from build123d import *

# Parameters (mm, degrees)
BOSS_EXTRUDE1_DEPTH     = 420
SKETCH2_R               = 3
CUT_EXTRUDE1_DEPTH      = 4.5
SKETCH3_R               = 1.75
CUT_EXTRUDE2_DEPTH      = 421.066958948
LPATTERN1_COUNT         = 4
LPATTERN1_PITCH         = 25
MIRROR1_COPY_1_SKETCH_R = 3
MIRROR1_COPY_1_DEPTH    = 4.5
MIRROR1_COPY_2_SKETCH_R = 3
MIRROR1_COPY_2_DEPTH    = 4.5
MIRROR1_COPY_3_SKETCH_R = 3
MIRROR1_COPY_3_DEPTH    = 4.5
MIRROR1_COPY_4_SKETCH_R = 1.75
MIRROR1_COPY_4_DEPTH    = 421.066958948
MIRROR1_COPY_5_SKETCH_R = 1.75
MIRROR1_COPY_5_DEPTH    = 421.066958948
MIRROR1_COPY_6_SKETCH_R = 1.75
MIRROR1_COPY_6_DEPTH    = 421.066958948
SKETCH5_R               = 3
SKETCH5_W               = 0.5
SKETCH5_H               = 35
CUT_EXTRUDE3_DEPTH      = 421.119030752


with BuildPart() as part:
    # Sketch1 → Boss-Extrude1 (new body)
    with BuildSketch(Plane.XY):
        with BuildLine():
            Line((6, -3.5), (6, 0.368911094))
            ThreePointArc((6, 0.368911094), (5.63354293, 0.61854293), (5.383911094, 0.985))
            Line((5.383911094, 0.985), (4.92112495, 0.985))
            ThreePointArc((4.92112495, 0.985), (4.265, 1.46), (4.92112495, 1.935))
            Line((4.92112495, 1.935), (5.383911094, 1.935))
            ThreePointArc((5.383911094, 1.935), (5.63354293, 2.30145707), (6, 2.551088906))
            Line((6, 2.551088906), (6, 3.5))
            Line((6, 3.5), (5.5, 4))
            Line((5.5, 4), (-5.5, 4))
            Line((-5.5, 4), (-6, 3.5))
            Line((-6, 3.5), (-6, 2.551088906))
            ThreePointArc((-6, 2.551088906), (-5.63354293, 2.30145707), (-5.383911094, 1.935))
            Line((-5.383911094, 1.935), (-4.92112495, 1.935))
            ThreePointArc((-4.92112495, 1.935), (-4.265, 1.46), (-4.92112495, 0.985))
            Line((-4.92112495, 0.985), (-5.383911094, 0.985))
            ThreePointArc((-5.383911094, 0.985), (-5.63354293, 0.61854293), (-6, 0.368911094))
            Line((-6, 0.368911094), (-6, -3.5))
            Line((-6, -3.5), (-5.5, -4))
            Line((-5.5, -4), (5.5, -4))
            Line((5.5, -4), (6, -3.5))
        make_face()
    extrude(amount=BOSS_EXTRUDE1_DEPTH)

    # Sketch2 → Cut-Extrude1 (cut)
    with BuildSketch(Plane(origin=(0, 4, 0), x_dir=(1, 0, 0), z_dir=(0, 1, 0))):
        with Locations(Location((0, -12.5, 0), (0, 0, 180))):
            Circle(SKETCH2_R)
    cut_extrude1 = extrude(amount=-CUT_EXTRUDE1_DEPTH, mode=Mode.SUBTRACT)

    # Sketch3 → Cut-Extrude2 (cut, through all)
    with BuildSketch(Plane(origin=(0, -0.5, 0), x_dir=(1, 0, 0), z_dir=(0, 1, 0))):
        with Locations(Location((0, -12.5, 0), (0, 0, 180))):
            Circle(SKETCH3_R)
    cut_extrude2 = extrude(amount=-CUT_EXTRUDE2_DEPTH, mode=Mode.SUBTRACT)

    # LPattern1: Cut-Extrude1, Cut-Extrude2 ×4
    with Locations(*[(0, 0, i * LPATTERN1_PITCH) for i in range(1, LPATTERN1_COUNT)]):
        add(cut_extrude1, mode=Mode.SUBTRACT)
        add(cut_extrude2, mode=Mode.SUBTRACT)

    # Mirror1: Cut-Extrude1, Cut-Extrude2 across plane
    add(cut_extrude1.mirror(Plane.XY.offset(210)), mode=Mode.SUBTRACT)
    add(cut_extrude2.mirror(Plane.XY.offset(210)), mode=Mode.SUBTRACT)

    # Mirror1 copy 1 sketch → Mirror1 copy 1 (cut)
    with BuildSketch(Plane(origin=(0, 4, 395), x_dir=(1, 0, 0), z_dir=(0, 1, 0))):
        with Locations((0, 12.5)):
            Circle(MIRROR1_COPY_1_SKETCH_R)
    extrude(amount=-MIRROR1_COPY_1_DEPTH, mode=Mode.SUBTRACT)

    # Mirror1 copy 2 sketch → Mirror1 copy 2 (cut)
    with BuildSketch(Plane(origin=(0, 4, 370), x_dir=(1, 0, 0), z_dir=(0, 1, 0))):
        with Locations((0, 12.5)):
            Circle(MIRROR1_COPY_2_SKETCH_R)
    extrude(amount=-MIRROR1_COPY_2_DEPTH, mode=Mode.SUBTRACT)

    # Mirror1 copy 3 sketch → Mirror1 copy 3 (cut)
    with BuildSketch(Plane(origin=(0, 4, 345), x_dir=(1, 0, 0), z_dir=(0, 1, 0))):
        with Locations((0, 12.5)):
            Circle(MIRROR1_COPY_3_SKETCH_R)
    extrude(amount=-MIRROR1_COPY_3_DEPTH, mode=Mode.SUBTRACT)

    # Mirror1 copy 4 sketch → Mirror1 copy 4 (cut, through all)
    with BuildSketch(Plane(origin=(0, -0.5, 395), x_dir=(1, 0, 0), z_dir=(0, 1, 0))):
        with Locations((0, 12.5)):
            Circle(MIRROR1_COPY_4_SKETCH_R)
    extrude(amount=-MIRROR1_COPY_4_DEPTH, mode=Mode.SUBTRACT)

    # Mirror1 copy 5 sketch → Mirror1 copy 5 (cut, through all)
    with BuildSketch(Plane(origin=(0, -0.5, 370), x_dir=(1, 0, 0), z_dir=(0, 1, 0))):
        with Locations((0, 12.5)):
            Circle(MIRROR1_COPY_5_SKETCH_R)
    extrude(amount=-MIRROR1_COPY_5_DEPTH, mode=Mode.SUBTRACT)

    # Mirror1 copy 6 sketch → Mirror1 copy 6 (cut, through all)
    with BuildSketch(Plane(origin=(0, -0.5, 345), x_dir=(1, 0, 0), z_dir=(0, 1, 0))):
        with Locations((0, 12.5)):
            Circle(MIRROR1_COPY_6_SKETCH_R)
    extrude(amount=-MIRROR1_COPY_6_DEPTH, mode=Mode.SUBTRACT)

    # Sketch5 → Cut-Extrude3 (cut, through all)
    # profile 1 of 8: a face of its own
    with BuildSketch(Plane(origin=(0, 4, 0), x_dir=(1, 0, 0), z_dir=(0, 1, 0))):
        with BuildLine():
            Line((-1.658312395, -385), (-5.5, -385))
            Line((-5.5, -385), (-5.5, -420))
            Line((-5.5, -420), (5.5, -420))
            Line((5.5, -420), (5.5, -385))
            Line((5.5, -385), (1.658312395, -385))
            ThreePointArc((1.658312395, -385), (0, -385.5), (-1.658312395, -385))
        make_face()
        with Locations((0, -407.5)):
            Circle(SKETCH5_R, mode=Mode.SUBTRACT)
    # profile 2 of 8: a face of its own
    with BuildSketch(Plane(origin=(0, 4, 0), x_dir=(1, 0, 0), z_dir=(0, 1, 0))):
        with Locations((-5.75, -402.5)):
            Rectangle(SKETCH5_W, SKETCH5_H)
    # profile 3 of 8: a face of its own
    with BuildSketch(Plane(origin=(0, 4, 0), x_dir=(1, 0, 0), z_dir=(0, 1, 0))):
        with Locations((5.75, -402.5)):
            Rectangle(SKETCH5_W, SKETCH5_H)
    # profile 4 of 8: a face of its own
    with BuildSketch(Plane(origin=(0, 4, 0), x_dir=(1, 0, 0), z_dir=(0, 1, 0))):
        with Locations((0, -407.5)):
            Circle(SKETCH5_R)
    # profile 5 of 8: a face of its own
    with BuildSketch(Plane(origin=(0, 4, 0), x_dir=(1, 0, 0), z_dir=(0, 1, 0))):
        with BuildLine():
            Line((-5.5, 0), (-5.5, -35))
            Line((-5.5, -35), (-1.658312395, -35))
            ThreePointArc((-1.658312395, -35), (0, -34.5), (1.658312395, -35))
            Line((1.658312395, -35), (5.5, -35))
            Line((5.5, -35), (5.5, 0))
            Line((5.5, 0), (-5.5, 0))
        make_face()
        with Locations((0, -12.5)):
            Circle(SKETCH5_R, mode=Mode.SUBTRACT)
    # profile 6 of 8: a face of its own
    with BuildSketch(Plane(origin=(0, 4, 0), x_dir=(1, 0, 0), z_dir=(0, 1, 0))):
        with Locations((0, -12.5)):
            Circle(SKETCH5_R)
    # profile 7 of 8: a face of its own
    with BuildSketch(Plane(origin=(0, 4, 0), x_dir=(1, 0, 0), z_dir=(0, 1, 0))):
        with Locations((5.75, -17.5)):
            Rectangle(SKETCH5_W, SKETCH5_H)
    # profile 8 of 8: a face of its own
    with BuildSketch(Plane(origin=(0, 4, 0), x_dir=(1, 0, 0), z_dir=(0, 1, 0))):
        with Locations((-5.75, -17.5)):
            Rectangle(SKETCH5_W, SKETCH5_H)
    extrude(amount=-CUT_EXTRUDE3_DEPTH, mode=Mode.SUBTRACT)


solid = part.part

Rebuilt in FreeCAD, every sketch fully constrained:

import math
import FreeCAD as App
import Part
import Sketcher
from FreeCAD import Vector
Q = App.Units.Quantity

doc = App.newDocument("Part")
body = doc.addObject("PartDesign::Body", "Body")

sketch1 = doc.addObject("Sketcher::SketchObject", "Sketch")
body.addObject(sketch1)
sketch1.AttachmentSupport = (doc.XY_Plane, [""])
sketch1.MapMode = "FlatFace"
sketch1.addGeometry([
    Part.LineSegment(Vector(6, -3.5, 0), Vector(6, 0.368911, 0)),
    Part.ArcOfCircle(Part.Circle(Vector(6.475, 1.46, 0), Vector(0, 0, 1), 1.19), math.radians(-156.474345), math.radians(-113.525655)),
    Part.LineSegment(Vector(5.383911, 0.985, 0), Vector(4.921125, 0.985, 0)),
    Part.ArcOfCircle(Part.Circle(Vector(4.765, 1.46, 0), Vector(0, 0, 1), 0.5), math.radians(71.805128), math.radians(288.194872)),
    Part.LineSegment(Vector(4.921125, 1.935, 0), Vector(5.383911, 1.935, 0)),
    Part.ArcOfCircle(Part.Circle(Vector(6.475, 1.46, 0), Vector(0, 0, 1), 1.19), math.radians(113.525655), math.radians(156.474345)),
    Part.LineSegment(Vector(6, 2.551089, 0), Vector(6, 3.5, 0)),
    Part.LineSegment(Vector(6, 3.5, 0), Vector(5.5, 4, 0)),
    Part.LineSegment(Vector(5.5, 4, 0), Vector(-5.5, 4, 0)),
    Part.LineSegment(Vector(-5.5, 4, 0), Vector(-6, 3.5, 0)),
    Part.LineSegment(Vector(-6, 3.5, 0), Vector(-6, 2.551089, 0)),
    Part.ArcOfCircle(Part.Circle(Vector(-6.475, 1.46, 0), Vector(0, 0, 1), 1.19), math.radians(23.525655), math.radians(66.474345)),
    Part.LineSegment(Vector(-5.383911, 1.935, 0), Vector(-4.921125, 1.935, 0)),
    Part.ArcOfCircle(Part.Circle(Vector(-4.765, 1.46, 0), Vector(0, 0, 1), 0.5), math.radians(-108.194872), math.radians(108.194872)),
    Part.LineSegment(Vector(-4.921125, 0.985, 0), Vector(-5.383911, 0.985, 0)),
    Part.ArcOfCircle(Part.Circle(Vector(-6.475, 1.46, 0), Vector(0, 0, 1), 1.19), math.radians(-66.474345), math.radians(-23.525655)),
    Part.LineSegment(Vector(-6, 0.368911, 0), Vector(-6, -3.5, 0)),
    Part.LineSegment(Vector(-6, -3.5, 0), Vector(-5.5, -4, 0)),
    Part.LineSegment(Vector(-5.5, -4, 0), Vector(5.5, -4, 0)),
    Part.LineSegment(Vector(5.5, -4, 0), Vector(6, -3.5, 0)),
], False)
sketch1.addConstraint([
    Sketcher.Constraint("Coincident", 0, 2, 1, 2),
    Sketcher.Constraint("Coincident", 1, 1, 2, 1),
    Sketcher.Constraint("Coincident", 2, 2, 3, 2),
    Sketcher.Constraint("Coincident", 3, 1, 4, 1),
    Sketcher.Constraint("Coincident", 4, 2, 5, 2),
    Sketcher.Constraint("Coincident", 5, 1, 6, 1),
    Sketcher.Constraint("Coincident", 6, 2, 7, 1),
    Sketcher.Constraint("Coincident", 7, 2, 8, 1),
    Sketcher.Constraint("Coincident", 8, 2, 9, 1),
    Sketcher.Constraint("Coincident", 9, 2, 10, 1),
    Sketcher.Constraint("Coincident", 10, 2, 11, 2),
    Sketcher.Constraint("Coincident", 11, 1, 12, 1),
    Sketcher.Constraint("Coincident", 12, 2, 13, 2),
    Sketcher.Constraint("Coincident", 13, 1, 14, 1),
    Sketcher.Constraint("Coincident", 14, 2, 15, 2),
    Sketcher.Constraint("Coincident", 15, 1, 16, 1),
    Sketcher.Constraint("Coincident", 16, 2, 17, 1),
    Sketcher.Constraint("Coincident", 17, 2, 18, 1),
    Sketcher.Constraint("Coincident", 18, 2, 19, 1),
    Sketcher.Constraint("Coincident", 19, 2, 0, 1),
    Sketcher.Constraint("Vertical", 0),
    Sketcher.Constraint("Horizontal", 2),
    Sketcher.Constraint("Horizontal", 4),
    Sketcher.Constraint("Vertical", 6),
    Sketcher.Constraint("Horizontal", 8),
    Sketcher.Constraint("Vertical", 10),
    Sketcher.Constraint("Horizontal", 12),
    Sketcher.Constraint("Horizontal", 14),
    Sketcher.Constraint("Vertical", 16),
    Sketcher.Constraint("Horizontal", 18),
    Sketcher.Constraint("Coincident", 5, 3, 1, 3),
    Sketcher.Constraint("Coincident", 15, 3, 11, 3),
    Sketcher.Constraint("Equal", 1, 5),
    Sketcher.Constraint("Equal", 5, 11),
    Sketcher.Constraint("Equal", 3, 13),
    Sketcher.Constraint("Equal", 11, 15),
    Sketcher.Constraint("Symmetric", 6, 2, 16, 2, -1, 1),
    Sketcher.Constraint("Symmetric", 7, 2, 17, 2, -1, 1),
    Sketcher.Constraint("Symmetric", 9, 2, 19, 2, -1, 1),
    Sketcher.Constraint("Symmetric", 1, 3, 11, 3, -2),
    Sketcher.Constraint("Symmetric", 3, 3, 13, 3, -2),
    Sketcher.Constraint("Symmetric", 6, 2, 9, 2, -2),
    Sketcher.Constraint("Perpendicular", 7, 9),
    Sketcher.Constraint("Perpendicular", 17, 19),
    Sketcher.Constraint("Horizontal", 1, 3, 3, 3),
    Sketcher.Constraint("Horizontal", 4, 2, 11, 1),
    Sketcher.Constraint("Horizontal", 2, 2, 13, 1),
    Sketcher.Constraint("Vertical", 2, 2, 3, 1),
    Sketcher.Constraint("Vertical", 8, 2, 17, 2),
    Sketcher.Constraint("Radius", 3, Q("0.5 mm")),
    Sketcher.Constraint("DistanceX", 8, 2, 8, 1, Q("11 mm")),
    Sketcher.Constraint("Radius", 1, Q("1.19 mm")),
    Sketcher.Constraint("DistanceX", -1, 1, 0, 2, Q("6 mm")),
    Sketcher.Constraint("DistanceY", -1, 1, 7, 2, Q("4 mm")),
    Sketcher.Constraint("DistanceY", -1, 1, 1, 3, Q("1.46 mm")),
    Sketcher.Constraint("DistanceX", 3, 3, 1, 3, Q("1.71 mm")),
    Sketcher.Constraint("DistanceX", 11, 3, 3, 3, Q("11.24 mm")),
    Sketcher.Constraint("DistanceY", 2, 2, 3, 1, Q("0.95 mm")),
])
pad1 = doc.addObject("PartDesign::Pad", "Pad")
body.addObject(pad1)
pad1.Profile = sketch1
pad1.Length = 420

sketch2 = doc.addObject("Sketcher::SketchObject", "Sketch001")
body.addObject(sketch2)
sketch2.AttachmentSupport = (doc.XZ_Plane, [""])
sketch2.MapMode = "FlatFace"
sketch2.AttachmentOffset = App.Placement(Vector(0, 0, -4), App.Rotation())
sketch2.addGeometry(Part.Circle(Vector(0, 12.5, 0), Vector(0, 0, 1), 3), False)
sketch2.addConstraint([
    Sketcher.Constraint("PointOnObject", 0, 3, -2),
    Sketcher.Constraint("Diameter", 0, Q("6 mm")),
    Sketcher.Constraint("DistanceY", -1, 1, 0, 3, Q("12.5 mm")),
])
pocket1 = doc.addObject("PartDesign::Pocket", "Pocket")
body.addObject(pocket1)
pocket1.Profile = sketch2
pocket1.Length = 4.5
pocket1.Reversed = True

sketch3 = doc.addObject("Sketcher::SketchObject", "Sketch002")
body.addObject(sketch3)
sketch3.AttachmentSupport = (doc.XZ_Plane, [""])
sketch3.MapMode = "FlatFace"
sketch3.AttachmentOffset = App.Placement(Vector(0, 0, 0.5), App.Rotation())
sketch3.addGeometry(Part.Circle(Vector(0, 12.5, 0), Vector(0, 0, 1), 1.75), False)
sketch3.addConstraint([
    Sketcher.Constraint("PointOnObject", 0, 3, -2),
    Sketcher.Constraint("Diameter", 0, Q("3.5 mm")),
    Sketcher.Constraint("DistanceY", -1, 1, 0, 3, Q("12.5 mm")),
])
pocket2 = doc.addObject("PartDesign::Pocket", "Pocket001")
body.addObject(pocket2)
pocket2.Profile = sketch3
pocket2.Type = "ThroughAll"
pocket2.Reversed = True
doc.recompute()

linearpattern = doc.addObject("PartDesign::LinearPattern", "LinearPattern")
body.addObject(linearpattern)
linearpattern.Originals = [pocket1, pocket2]
linearpattern.Direction = (doc.Z_Axis, [""])
linearpattern.Mode = "offset"
linearpattern.Offset = 25
linearpattern.Occurrences = 4
body.Tip = linearpattern
doc.recompute()

datumplane = doc.addObject("PartDesign::Plane", "DatumPlane")
body.addObject(datumplane)
datumplane.AttachmentSupport = (doc.XY_Plane, [""])
datumplane.MapMode = "FlatFace"
datumplane.AttachmentOffset = App.Placement(Vector(0, 0, 210), App.Rotation())
mirrored = doc.addObject("PartDesign::Mirrored", "Mirrored")
body.addObject(mirrored)
mirrored.Originals = [pocket1, pocket2]
mirrored.MirrorPlane = (datumplane, [""])
body.Tip = mirrored

sketch4 = doc.addObject("Sketcher::SketchObject", "Sketch003")
body.addObject(sketch4)
sketch4.AttachmentSupport = (doc.XZ_Plane, [""])
sketch4.MapMode = "FlatFace"
sketch4.AttachmentOffset = App.Placement(Vector(0, 0, -4), App.Rotation())
sketch4.addGeometry(Part.Circle(Vector(0, 382.5, 0), Vector(0, 0, 1), 3), False)
sketch4.addConstraint([
    Sketcher.Constraint("PointOnObject", 0, 3, -2),
    Sketcher.Constraint("Diameter", 0, Q("6 mm")),
    Sketcher.Constraint("DistanceY", -1, 1, 0, 3, Q("382.5 mm")),
])
pocket3 = doc.addObject("PartDesign::Pocket", "Pocket002")
body.addObject(pocket3)
pocket3.Profile = sketch4
pocket3.Length = 4.5
pocket3.Reversed = True

sketch5 = doc.addObject("Sketcher::SketchObject", "Sketch004")
body.addObject(sketch5)
sketch5.AttachmentSupport = (doc.XZ_Plane, [""])
sketch5.MapMode = "FlatFace"
sketch5.AttachmentOffset = App.Placement(Vector(0, 0, -4), App.Rotation())
sketch5.addGeometry(Part.Circle(Vector(0, 357.5, 0), Vector(0, 0, 1), 3), False)
sketch5.addConstraint([
    Sketcher.Constraint("PointOnObject", 0, 3, -2),
    Sketcher.Constraint("Diameter", 0, Q("6 mm")),
    Sketcher.Constraint("DistanceY", -1, 1, 0, 3, Q("357.5 mm")),
])
pocket4 = doc.addObject("PartDesign::Pocket", "Pocket003")
body.addObject(pocket4)
pocket4.Profile = sketch5
pocket4.Length = 4.5
pocket4.Reversed = True

sketch6 = doc.addObject("Sketcher::SketchObject", "Sketch005")
body.addObject(sketch6)
sketch6.AttachmentSupport = (doc.XZ_Plane, [""])
sketch6.MapMode = "FlatFace"
sketch6.AttachmentOffset = App.Placement(Vector(0, 0, -4), App.Rotation())
sketch6.addGeometry(Part.Circle(Vector(0, 332.5, 0), Vector(0, 0, 1), 3), False)
sketch6.addConstraint([
    Sketcher.Constraint("PointOnObject", 0, 3, -2),
    Sketcher.Constraint("Diameter", 0, Q("6 mm")),
    Sketcher.Constraint("DistanceY", -1, 1, 0, 3, Q("332.5 mm")),
])
pocket5 = doc.addObject("PartDesign::Pocket", "Pocket004")
body.addObject(pocket5)
pocket5.Profile = sketch6
pocket5.Length = 4.5
pocket5.Reversed = True

sketch7 = doc.addObject("Sketcher::SketchObject", "Sketch006")
body.addObject(sketch7)
sketch7.AttachmentSupport = (doc.XZ_Plane, [""])
sketch7.MapMode = "FlatFace"
sketch7.AttachmentOffset = App.Placement(Vector(0, 0, 0.5), App.Rotation())
sketch7.addGeometry(Part.Circle(Vector(0, 382.5, 0), Vector(0, 0, 1), 1.75), False)
sketch7.addConstraint([
    Sketcher.Constraint("PointOnObject", 0, 3, -2),
    Sketcher.Constraint("Diameter", 0, Q("3.5 mm")),
    Sketcher.Constraint("DistanceY", -1, 1, 0, 3, Q("382.5 mm")),
])
pocket6 = doc.addObject("PartDesign::Pocket", "Pocket005")
body.addObject(pocket6)
pocket6.Profile = sketch7
pocket6.Type = "ThroughAll"
pocket6.Reversed = True

sketch8 = doc.addObject("Sketcher::SketchObject", "Sketch007")
body.addObject(sketch8)
sketch8.AttachmentSupport = (doc.XZ_Plane, [""])
sketch8.MapMode = "FlatFace"
sketch8.AttachmentOffset = App.Placement(Vector(0, 0, 0.5), App.Rotation())
sketch8.addGeometry(Part.Circle(Vector(0, 357.5, 0), Vector(0, 0, 1), 1.75), False)
sketch8.addConstraint([
    Sketcher.Constraint("PointOnObject", 0, 3, -2),
    Sketcher.Constraint("Diameter", 0, Q("3.5 mm")),
    Sketcher.Constraint("DistanceY", -1, 1, 0, 3, Q("357.5 mm")),
])
pocket7 = doc.addObject("PartDesign::Pocket", "Pocket006")
body.addObject(pocket7)
pocket7.Profile = sketch8
pocket7.Type = "ThroughAll"
pocket7.Reversed = True

sketch9 = doc.addObject("Sketcher::SketchObject", "Sketch008")
body.addObject(sketch9)
sketch9.AttachmentSupport = (doc.XZ_Plane, [""])
sketch9.MapMode = "FlatFace"
sketch9.AttachmentOffset = App.Placement(Vector(0, 0, 0.5), App.Rotation())
sketch9.addGeometry(Part.Circle(Vector(0, 332.5, 0), Vector(0, 0, 1), 1.75), False)
sketch9.addConstraint([
    Sketcher.Constraint("PointOnObject", 0, 3, -2),
    Sketcher.Constraint("Diameter", 0, Q("3.5 mm")),
    Sketcher.Constraint("DistanceY", -1, 1, 0, 3, Q("332.5 mm")),
])
pocket8 = doc.addObject("PartDesign::Pocket", "Pocket007")
body.addObject(pocket8)
pocket8.Profile = sketch9
pocket8.Type = "ThroughAll"
pocket8.Reversed = True

sketch10 = doc.addObject("Sketcher::SketchObject", "Sketch009")
body.addObject(sketch10)
sketch10.AttachmentSupport = (doc.XZ_Plane, [""])
sketch10.MapMode = "FlatFace"
sketch10.AttachmentOffset = App.Placement(Vector(0, 0, -4), App.Rotation())
sketch10.addGeometry([
    Part.LineSegment(Vector(-1.658312, 385, 0), Vector(-6, 385, 0)),
    Part.LineSegment(Vector(-6, 385, 0), Vector(-6, 420, 0)),
    Part.LineSegment(Vector(-6, 420, 0), Vector(6, 420, 0)),
    Part.LineSegment(Vector(6, 420, 0), Vector(6, 385, 0)),
    Part.LineSegment(Vector(6, 385, 0), Vector(1.658312, 385, 0)),
    Part.ArcOfCircle(Part.Circle(Vector(0, 382.5, 0), Vector(0, 0, 1), 3), math.radians(56.44269), math.radians(123.55731)),
    Part.LineSegment(Vector(-6, 0, 0), Vector(-6, 35, 0)),
    Part.LineSegment(Vector(-6, 35, 0), Vector(-1.658312, 35, 0)),
    Part.ArcOfCircle(Part.Circle(Vector(0, 37.5, 0), Vector(0, 0, 1), 3), math.radians(-123.55731), math.radians(-56.44269)),
    Part.LineSegment(Vector(1.658312, 35, 0), Vector(6, 35, 0)),
    Part.LineSegment(Vector(6, 35, 0), Vector(6, 0, 0)),
    Part.LineSegment(Vector(6, 0, 0), Vector(-6, 0, 0)),
], False)
sketch10.addConstraint([
    Sketcher.Constraint("Coincident", 0, 2, 1, 1),
    Sketcher.Constraint("Coincident", 1, 2, 2, 1),
    Sketcher.Constraint("Coincident", 2, 2, 3, 1),
    Sketcher.Constraint("Coincident", 3, 2, 4, 1),
    Sketcher.Constraint("Coincident", 4, 2, 5, 1),
    Sketcher.Constraint("Coincident", 5, 2, 0, 1),
    Sketcher.Constraint("Coincident", 6, 2, 7, 1),
    Sketcher.Constraint("Coincident", 7, 2, 8, 1),
    Sketcher.Constraint("Coincident", 8, 2, 9, 1),
    Sketcher.Constraint("Coincident", 9, 2, 10, 1),
    Sketcher.Constraint("Coincident", 10, 2, 11, 1),
    Sketcher.Constraint("Coincident", 11, 2, 6, 1),
    Sketcher.Constraint("Horizontal", 0),
    Sketcher.Constraint("Vertical", 1),
    Sketcher.Constraint("Horizontal", 2),
    Sketcher.Constraint("Vertical", 3),
    Sketcher.Constraint("Horizontal", 4),
    Sketcher.Constraint("Vertical", 6),
    Sketcher.Constraint("Horizontal", 7),
    Sketcher.Constraint("Horizontal", 9),
    Sketcher.Constraint("Vertical", 10),
    Sketcher.Constraint("Horizontal", 11),
    Sketcher.Constraint("Equal", 5, 8),
    Sketcher.Constraint("Symmetric", 10, 2, 11, 2, -1, 1),
    Sketcher.Constraint("Symmetric", 0, 2, 3, 2, -2),
    Sketcher.Constraint("Symmetric", 7, 2, 8, 2, -2),
    Sketcher.Constraint("PointOnObject", 5, 3, -2),
    Sketcher.Constraint("Vertical", 1, 2, 6, 2),
    Sketcher.Constraint("Vertical", 5, 2, 7, 2),
    Sketcher.Constraint("Equal", 3, 6),
    Sketcher.Constraint("Radius", 5, Q("3 mm")),
    Sketcher.Constraint("DistanceX", 2, 1, 2, 2, Q("12 mm")),
    Sketcher.Constraint("DistanceY", 1, 1, 1, 2, Q("35 mm")),
    Sketcher.Constraint("DistanceY", -1, 1, 0, 2, Q("385 mm")),
    Sketcher.Constraint("DistanceY", 8, 3, 5, 3, Q("345 mm")),
])
pocket9 = doc.addObject("PartDesign::Pocket", "Pocket008")
body.addObject(pocket9)
pocket9.Profile = sketch10
pocket9.Length = 421.119031
pocket9.Reversed = True

doc.recompute()
